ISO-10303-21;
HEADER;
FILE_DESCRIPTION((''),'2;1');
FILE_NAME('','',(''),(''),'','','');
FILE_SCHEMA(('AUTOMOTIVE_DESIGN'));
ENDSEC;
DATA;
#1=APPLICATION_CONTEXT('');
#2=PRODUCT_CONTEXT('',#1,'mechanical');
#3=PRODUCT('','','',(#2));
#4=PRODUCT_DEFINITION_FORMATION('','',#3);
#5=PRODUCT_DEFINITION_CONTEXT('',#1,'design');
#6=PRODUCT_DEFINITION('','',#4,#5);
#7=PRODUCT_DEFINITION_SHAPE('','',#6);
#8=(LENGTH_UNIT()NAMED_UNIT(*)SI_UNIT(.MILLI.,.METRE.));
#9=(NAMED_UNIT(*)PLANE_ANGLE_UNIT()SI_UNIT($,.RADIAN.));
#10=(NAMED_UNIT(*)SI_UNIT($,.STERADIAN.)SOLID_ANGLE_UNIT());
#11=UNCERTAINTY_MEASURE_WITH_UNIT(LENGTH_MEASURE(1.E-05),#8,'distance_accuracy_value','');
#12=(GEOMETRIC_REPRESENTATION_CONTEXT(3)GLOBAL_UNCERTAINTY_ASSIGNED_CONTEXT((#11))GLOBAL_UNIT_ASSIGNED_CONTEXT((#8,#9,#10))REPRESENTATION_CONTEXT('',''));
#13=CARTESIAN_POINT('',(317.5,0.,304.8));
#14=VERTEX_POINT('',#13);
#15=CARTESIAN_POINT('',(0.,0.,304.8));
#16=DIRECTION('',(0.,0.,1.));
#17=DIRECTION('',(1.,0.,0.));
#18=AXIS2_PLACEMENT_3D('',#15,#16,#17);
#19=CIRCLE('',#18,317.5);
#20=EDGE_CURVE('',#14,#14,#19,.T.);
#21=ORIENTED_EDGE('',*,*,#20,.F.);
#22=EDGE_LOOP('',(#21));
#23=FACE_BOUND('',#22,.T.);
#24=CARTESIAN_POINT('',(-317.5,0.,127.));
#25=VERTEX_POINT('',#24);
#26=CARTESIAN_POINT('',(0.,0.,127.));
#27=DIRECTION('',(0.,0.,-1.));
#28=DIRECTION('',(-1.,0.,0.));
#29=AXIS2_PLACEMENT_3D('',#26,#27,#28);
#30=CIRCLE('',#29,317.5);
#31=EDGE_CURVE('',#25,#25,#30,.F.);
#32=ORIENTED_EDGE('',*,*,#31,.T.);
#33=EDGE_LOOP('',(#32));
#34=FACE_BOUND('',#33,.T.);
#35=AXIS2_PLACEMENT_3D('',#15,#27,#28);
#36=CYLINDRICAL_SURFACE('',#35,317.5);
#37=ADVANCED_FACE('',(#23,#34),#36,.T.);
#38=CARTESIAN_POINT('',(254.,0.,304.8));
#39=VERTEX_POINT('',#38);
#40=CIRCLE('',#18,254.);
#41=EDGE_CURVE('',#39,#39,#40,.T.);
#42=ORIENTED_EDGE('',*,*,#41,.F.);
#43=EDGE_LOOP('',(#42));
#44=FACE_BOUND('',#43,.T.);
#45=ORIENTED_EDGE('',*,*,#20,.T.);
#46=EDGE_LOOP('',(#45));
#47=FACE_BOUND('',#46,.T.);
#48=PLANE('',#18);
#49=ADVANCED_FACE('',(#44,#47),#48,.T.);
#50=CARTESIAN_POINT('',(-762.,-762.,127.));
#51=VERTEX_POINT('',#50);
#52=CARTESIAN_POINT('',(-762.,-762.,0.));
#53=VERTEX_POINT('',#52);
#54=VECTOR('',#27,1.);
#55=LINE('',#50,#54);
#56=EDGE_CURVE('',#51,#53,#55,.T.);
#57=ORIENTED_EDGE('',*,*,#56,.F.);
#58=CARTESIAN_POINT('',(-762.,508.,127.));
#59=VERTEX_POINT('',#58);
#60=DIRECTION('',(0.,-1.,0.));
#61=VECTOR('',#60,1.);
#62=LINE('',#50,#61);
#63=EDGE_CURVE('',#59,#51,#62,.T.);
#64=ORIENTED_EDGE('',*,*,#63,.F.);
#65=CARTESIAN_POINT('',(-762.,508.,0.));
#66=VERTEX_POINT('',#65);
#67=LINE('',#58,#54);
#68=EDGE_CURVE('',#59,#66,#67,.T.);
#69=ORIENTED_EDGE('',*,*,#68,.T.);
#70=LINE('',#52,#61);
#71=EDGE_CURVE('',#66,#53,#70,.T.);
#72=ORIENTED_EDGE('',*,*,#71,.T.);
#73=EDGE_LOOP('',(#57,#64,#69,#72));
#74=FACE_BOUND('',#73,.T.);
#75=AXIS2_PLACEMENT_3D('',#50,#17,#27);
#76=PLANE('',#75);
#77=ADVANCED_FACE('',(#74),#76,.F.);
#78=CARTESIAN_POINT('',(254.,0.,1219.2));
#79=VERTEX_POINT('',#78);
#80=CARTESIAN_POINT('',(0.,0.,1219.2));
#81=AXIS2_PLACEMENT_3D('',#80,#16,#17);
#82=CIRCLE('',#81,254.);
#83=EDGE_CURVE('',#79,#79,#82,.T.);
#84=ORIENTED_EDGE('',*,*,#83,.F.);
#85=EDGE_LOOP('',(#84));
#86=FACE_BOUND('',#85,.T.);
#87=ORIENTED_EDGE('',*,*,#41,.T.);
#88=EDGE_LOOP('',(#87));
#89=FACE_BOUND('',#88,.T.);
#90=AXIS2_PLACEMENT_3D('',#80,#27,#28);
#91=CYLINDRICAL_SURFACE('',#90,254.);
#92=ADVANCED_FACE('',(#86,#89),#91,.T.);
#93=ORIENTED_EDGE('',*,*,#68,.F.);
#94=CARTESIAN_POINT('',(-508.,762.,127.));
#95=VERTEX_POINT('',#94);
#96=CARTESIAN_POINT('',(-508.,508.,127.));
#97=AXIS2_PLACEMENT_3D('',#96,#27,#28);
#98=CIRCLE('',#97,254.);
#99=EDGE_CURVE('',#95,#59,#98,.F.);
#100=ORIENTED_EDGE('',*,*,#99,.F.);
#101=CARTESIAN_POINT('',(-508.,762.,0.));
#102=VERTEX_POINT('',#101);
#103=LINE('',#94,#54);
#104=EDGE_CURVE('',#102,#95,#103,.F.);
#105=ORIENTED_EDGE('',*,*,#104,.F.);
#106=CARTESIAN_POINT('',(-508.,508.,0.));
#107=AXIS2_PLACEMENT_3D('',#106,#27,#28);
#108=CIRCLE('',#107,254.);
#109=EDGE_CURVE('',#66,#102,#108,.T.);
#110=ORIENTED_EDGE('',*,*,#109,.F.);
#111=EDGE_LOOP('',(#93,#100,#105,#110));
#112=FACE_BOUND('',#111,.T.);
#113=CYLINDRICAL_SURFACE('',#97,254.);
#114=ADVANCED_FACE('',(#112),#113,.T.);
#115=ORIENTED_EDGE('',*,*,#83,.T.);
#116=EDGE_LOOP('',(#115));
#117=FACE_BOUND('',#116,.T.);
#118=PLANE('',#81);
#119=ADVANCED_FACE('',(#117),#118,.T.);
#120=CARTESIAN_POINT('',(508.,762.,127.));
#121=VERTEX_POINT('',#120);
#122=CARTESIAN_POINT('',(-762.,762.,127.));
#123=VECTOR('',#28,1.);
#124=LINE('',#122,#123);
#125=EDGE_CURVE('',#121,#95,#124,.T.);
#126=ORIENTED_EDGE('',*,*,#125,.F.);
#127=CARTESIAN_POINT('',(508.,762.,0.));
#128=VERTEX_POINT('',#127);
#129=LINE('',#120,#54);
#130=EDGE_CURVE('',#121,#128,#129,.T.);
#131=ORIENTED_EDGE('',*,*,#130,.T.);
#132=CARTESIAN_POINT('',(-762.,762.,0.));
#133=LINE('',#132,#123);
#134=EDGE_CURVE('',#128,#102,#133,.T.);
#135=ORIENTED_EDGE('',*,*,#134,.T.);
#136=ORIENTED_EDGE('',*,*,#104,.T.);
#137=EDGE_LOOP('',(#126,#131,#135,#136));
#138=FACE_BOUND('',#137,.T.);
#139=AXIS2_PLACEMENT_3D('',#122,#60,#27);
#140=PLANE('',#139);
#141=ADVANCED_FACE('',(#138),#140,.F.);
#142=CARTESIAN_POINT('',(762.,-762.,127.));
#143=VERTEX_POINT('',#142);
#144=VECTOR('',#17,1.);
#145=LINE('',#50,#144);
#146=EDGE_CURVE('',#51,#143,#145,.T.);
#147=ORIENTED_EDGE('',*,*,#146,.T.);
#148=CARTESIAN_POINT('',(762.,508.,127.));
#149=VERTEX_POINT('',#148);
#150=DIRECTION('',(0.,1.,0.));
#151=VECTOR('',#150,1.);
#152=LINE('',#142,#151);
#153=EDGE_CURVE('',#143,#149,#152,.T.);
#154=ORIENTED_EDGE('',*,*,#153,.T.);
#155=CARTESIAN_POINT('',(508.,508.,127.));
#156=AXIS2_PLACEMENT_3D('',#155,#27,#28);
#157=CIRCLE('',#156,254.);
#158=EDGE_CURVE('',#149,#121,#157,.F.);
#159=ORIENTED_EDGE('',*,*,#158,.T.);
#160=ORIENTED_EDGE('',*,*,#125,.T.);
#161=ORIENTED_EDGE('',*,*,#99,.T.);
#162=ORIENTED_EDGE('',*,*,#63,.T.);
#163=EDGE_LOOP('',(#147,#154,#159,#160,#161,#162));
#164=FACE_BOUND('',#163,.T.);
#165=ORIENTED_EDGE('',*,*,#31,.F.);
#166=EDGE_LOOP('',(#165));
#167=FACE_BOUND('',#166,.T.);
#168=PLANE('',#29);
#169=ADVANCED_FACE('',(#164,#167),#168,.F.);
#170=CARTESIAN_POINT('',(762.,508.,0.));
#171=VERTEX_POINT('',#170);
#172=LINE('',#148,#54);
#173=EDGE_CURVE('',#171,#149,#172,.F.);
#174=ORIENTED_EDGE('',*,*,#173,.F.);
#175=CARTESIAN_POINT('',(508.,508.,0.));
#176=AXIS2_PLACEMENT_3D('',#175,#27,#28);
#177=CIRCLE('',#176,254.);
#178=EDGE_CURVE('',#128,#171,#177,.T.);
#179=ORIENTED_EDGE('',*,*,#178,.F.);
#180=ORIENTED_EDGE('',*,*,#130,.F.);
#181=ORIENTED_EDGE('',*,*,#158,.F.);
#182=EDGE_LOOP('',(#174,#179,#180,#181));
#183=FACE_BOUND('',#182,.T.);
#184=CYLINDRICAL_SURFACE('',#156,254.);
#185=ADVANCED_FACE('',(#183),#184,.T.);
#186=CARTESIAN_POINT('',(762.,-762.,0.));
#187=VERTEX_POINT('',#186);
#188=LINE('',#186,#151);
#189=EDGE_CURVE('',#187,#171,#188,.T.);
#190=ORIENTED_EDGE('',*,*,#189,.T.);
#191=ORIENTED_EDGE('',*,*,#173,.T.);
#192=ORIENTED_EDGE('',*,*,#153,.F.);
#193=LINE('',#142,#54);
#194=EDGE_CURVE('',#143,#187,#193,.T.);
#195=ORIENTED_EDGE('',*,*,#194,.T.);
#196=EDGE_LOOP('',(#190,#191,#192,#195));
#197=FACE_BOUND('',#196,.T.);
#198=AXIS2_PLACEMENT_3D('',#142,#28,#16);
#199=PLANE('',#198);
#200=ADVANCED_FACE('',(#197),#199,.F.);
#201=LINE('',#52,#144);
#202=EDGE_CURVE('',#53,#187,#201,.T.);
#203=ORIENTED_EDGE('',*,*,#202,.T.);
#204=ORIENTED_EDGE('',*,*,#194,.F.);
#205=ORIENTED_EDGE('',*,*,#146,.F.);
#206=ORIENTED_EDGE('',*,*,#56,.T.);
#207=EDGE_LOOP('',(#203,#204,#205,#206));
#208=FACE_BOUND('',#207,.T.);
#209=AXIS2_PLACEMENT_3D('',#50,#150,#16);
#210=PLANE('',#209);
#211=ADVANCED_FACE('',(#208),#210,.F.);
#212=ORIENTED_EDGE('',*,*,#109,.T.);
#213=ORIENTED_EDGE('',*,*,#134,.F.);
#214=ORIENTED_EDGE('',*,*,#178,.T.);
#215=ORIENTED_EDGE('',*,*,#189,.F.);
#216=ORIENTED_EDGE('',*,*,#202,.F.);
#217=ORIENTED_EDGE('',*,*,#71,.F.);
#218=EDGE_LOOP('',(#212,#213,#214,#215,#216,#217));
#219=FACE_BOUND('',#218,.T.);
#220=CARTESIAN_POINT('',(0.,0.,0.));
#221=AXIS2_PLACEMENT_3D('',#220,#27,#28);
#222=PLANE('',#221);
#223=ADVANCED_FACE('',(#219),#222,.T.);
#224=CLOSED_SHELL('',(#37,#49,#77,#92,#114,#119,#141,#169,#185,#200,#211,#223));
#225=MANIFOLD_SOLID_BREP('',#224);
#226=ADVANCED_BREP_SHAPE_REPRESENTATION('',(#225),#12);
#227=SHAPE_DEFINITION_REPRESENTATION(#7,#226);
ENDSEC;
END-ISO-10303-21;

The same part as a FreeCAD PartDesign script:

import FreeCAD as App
import Part
import Sketcher
from FreeCAD import Vector
Q = App.Units.Quantity


def edges_at(feature, points):
    """Names of the edges that pass closest to the given points."""
    edges = feature.Shape.Edges
    near = lambda p: min(range(len(edges)), key=lambda i: edges[i].distToShape(Part.Vertex(*p))[0])
    return sorted({f"Edge{near(p) + 1}" for p in points})


def add_polygon(sketch, points):
    """Adds a closed chain of lines whose ends are joined by coincident constraints."""
    first, n = sketch.GeometryCount, len(points)
    for a, b in zip(points, points[1:] + points[:1]):
        sketch.addGeometry(Part.LineSegment(App.Vector(*a, 0), App.Vector(*b, 0)), False)
    for i in range(n):
        sketch.addConstraint(Sketcher.Constraint("Coincident", first + i, 2, first + (i + 1) % n, 1))

doc = App.newDocument("Part")
body = doc.addObject("PartDesign::Body", "Body")

# Sketch on XY plane
sketch1 = doc.addObject("Sketcher::SketchObject", "Sketch")
body.addObject(sketch1)
sketch1.AttachmentSupport = (doc.XY_Plane, [""])
sketch1.MapMode = "FlatFace"
add_polygon(sketch1, [(-762, 762), (-762, -762), (762, -762), (762, 762)])  # lines 0-3
sketch1.addConstraint([
    Sketcher.Constraint("Vertical", 0),
    Sketcher.Constraint("Horizontal", 1),
    Sketcher.Constraint("Vertical", 2),
    Sketcher.Constraint("Horizontal", 3),
    Sketcher.Constraint("Symmetric", 0, 2, 2, 2, -1, 1),
    Sketcher.Constraint("Equal", 3, 0),
    Sketcher.Constraint("DistanceX", 1, 1, 1, 2, Q("60 in")),
])
pad1 = doc.addObject("PartDesign::Pad", "Pad")
body.addObject(pad1)
pad1.Profile = sketch1
pad1.Length = Q("5 in")

# Sketch on XY plane
sketch2 = doc.addObject("Sketcher::SketchObject", "Sketch001")
body.addObject(sketch2)
sketch2.AttachmentSupport = (doc.XY_Plane, [""])
sketch2.MapMode = "FlatFace"
sketch2.AttachmentOffset = App.Placement(Vector(0, 0, 5 * 25.4), App.Rotation())
sketch2.addGeometry(Part.Circle(Vector(0, 0, 0), Vector(0, 0, 1), 254), False)
sketch2.addConstraint([
    Sketcher.Constraint("Coincident", 0, 3, -1, 1),
    Sketcher.Constraint("Diameter", 0, Q("20 in")),
])
pad2 = doc.addObject("PartDesign::Pad", "Pad001")
body.addObject(pad2)
pad2.Profile = sketch2
pad2.Length = Q("43 in")

# Sketch on XY plane
sketch3 = doc.addObject("Sketcher::SketchObject", "Sketch002")
body.addObject(sketch3)
sketch3.AttachmentSupport = (doc.XY_Plane, [""])
sketch3.MapMode = "FlatFace"
sketch3.AttachmentOffset = App.Placement(Vector(0, 0, 5 * 25.4), App.Rotation())
sketch3.addGeometry(Part.Circle(Vector(0, 0, 0), Vector(0, 0, 1), 317.5), False)
sketch3.addConstraint([
    Sketcher.Constraint("Coincident", 0, 3, -1, 1),
    Sketcher.Constraint("Diameter", 0, Q("25 in")),
])
pad3 = doc.addObject("PartDesign::Pad", "Pad002")
body.addObject(pad3)
pad3.Profile = sketch3
pad3.Length = Q("7 in")
doc.recompute()

fillet = doc.addObject("PartDesign::Fillet", "Fillet")
body.addObject(fillet)
fillet.Base = (pad3, edges_at(pad3, [(-762, 762, 63.5), (762, 762, 63.5)]))
fillet.Radius = Q("10 in")

doc.recompute()
